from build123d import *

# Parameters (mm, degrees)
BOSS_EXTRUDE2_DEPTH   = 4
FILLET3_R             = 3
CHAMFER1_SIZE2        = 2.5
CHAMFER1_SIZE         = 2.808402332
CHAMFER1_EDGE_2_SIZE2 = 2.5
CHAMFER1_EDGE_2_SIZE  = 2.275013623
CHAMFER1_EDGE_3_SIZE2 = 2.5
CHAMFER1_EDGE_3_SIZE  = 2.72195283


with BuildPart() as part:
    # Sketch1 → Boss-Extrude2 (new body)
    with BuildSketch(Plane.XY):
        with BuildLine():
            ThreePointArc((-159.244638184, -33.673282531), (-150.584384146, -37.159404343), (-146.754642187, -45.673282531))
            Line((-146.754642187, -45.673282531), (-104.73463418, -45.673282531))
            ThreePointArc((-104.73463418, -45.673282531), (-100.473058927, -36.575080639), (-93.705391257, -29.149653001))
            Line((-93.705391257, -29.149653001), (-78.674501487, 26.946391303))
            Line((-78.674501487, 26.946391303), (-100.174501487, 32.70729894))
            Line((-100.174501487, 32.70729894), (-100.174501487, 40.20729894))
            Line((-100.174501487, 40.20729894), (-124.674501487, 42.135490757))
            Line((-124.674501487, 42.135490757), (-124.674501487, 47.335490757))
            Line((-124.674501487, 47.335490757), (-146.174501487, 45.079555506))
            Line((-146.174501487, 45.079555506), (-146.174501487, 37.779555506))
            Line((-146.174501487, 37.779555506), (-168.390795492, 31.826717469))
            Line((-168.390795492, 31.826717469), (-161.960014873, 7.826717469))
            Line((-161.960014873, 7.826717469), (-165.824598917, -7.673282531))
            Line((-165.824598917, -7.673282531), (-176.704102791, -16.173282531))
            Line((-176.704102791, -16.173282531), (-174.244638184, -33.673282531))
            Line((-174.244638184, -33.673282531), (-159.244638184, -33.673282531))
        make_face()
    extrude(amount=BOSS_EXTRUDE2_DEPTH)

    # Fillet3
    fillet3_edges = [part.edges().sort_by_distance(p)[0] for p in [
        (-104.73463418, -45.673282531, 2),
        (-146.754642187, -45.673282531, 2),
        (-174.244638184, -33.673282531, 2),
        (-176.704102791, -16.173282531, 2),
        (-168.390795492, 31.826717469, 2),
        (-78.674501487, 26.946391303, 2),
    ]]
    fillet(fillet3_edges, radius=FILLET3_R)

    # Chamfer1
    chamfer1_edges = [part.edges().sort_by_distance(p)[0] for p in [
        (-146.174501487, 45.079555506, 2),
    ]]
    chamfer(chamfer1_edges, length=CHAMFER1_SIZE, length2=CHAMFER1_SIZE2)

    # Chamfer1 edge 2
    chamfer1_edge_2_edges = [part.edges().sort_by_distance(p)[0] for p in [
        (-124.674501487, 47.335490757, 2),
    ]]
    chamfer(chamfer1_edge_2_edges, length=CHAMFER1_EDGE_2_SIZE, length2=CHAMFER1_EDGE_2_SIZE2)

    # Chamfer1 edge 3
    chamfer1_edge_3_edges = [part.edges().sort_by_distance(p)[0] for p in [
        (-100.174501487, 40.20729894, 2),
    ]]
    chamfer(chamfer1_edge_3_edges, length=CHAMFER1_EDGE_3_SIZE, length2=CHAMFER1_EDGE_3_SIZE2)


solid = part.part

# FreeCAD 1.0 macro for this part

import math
import FreeCAD as App
import Part
import Sketcher
from FreeCAD import Vector
Q = App.Units.Quantity


def edges_at(feature, points):
    """Names of the edges that pass closest to the given points."""
    edges = feature.Shape.Edges
    near = lambda p: min(range(len(edges)), key=lambda i: edges[i].distToShape(Part.Vertex(*p))[0])
    return sorted({f"Edge{near(p) + 1}" for p in points})

doc = App.newDocument("Part")
body = doc.addObject("PartDesign::Body", "Body")

sketch1 = body.newObject("Sketcher::SketchObject", "Sketch")
sketch1.AttachmentSupport = (doc.getObject("XY_Plane"), [""])
sketch1.MapMode = "FlatFace"
sketch1.addGeometry([
    Part.ArcOfCircle(Part.Circle(Vector(-159, -46, 0), Vector(0, 0, 1), 13), math.radians(2), math.radians(90)),
    Part.LineSegment(Vector(-147, -46, 0), Vector(-105, -46, 0)),
    Part.ArcOfCircle(Part.Circle(Vector(-73, -55, 0), Vector(0, 0, 1), 33), math.radians(129), math.radians(164)),
    Part.LineSegment(Vector(-94, -29, 0), Vector(-79, 27, 0)),
    Part.LineSegment(Vector(-79, 27, 0), Vector(-100, 33, 0)),
    Part.LineSegment(Vector(-100, 33, 0), Vector(-100, 40, 0)),
    Part.LineSegment(Vector(-100, 40, 0), Vector(-125, 42, 0)),
    Part.LineSegment(Vector(-125, 42, 0), Vector(-125, 47, 0)),
    Part.LineSegment(Vector(-125, 47, 0), Vector(-146, 45, 0)),
    Part.LineSegment(Vector(-146, 45, 0), Vector(-146, 38, 0)),
    Part.LineSegment(Vector(-146, 38, 0), Vector(-168, 32, 0)),
    Part.LineSegment(Vector(-168, 32, 0), Vector(-162, 8, 0)),
    Part.LineSegment(Vector(-162, 8, 0), Vector(-166, -8, 0)),
    Part.LineSegment(Vector(-166, -8, 0), Vector(-177, -16, 0)),
    Part.LineSegment(Vector(-177, -16, 0), Vector(-174, -34, 0)),
    Part.LineSegment(Vector(-174, -34, 0), Vector(-159, -34, 0)),
], False)
sketch1.addConstraint([
    Sketcher.Constraint("Coincident", 0, 1, 1, 1),
    Sketcher.Constraint("Coincident", 1, 2, 2, 2),
    Sketcher.Constraint("Coincident", 2, 1, 3, 1),
    Sketcher.Constraint("Coincident", 3, 2, 4, 1),
    Sketcher.Constraint("Coincident", 4, 2, 5, 1),
    Sketcher.Constraint("Coincident", 5, 2, 6, 1),
    Sketcher.Constraint("Coincident", 6, 2, 7, 1),
    Sketcher.Constraint("Coincident", 7, 2, 8, 1),
    Sketcher.Constraint("Coincident", 8, 2, 9, 1),
    Sketcher.Constraint("Coincident", 9, 2, 10, 1),
    Sketcher.Constraint("Coincident", 10, 2, 11, 1),
    Sketcher.Constraint("Coincident", 11, 2, 12, 1),
    Sketcher.Constraint("Coincident", 12, 2, 13, 1),
    Sketcher.Constraint("Coincident", 13, 2, 14, 1),
    Sketcher.Constraint("Coincident", 14, 2, 15, 1),
    Sketcher.Constraint("Tangent", 15, 2, 0, 2),
    Sketcher.Constraint("Horizontal", 1),
    Sketcher.Constraint("Vertical", 5),
    Sketcher.Constraint("Vertical", 7),
    Sketcher.Constraint("Vertical", 9),
    Sketcher.Constraint("Horizontal", 15),
    Sketcher.Constraint("Perpendicular", 3, 4),
    Sketcher.Constraint("Perpendicular", 10, 11),
    Sketcher.Constraint("Radius", 0, Q("12.5 mm")),
    Sketcher.Constraint("Radius", 2, Q("33.5 mm")),
    Sketcher.Constraint("DistanceX", 15, 1, 15, 2, Q("15 mm")),
    Sketcher.Constraint("Angle", 3, Q("75 deg")),
    Sketcher.Constraint("Angle", 10, Q("-165 deg")),
    Sketcher.Constraint("Angle", 12, Q("-104 deg")),
    Sketcher.Constraint("Angle", 13, Q("-142 deg")),
    Sketcher.Constraint("Angle", 14, Q("-82 deg")),
    Sketcher.Constraint("Distance", 10, Q("23 mm")),
    Sketcher.Constraint("DistanceY", 5, 1, 5, 2, Q("7.5 mm")),
    Sketcher.Constraint("DistanceY", 7, 1, 7, 2, Q("5.2 mm")),
    Sketcher.Constraint("DistanceY", 9, 2, 9, 1, Q("7.3 mm")),
    Sketcher.Constraint("Angle", 6, Q("175.5 deg")),
    Sketcher.Constraint("DistanceY", 2, 3, 0, 3, Q("9 mm")),
    Sketcher.Constraint("DistanceX", 6, 2, 3, 2, Q("46 mm")),
    Sketcher.Constraint("DistanceX", 8, 2, 5, 2, Q("46 mm")),
    Sketcher.Constraint("DistanceY", 11, 2, 10, 2, Q("24 mm")),
    Sketcher.Constraint("DistanceY", 0, 3, 11, 2, Q("54 mm")),
    Sketcher.Constraint("DistanceY", 0, 1, 12, 2, Q("38 mm")),
    Sketcher.Constraint("DistanceY", 13, 2, 11, 2, Q("24 mm")),
    Sketcher.Constraint("DistanceY", 14, 2, 12, 2, Q("26 mm")),
    Sketcher.Constraint("DistanceX", 4, 2, 3, 2, Q("21.5 mm")),
    Sketcher.Constraint("Distance", 3, Q("58.074898 mm")),
    Sketcher.Constraint("DistanceX", 1, 1, 1, 2, Q("42.020008 mm")),
    Sketcher.Constraint("DistanceX", 3, 2, -1, 1, Q("78.674501 mm")),
    Sketcher.Constraint("DistanceY", -1, 1, 4, 2, Q("32.707299 mm")),
])
pad1 = body.newObject("PartDesign::Pad", "Pad")
pad1.Profile = sketch1
pad1.Length = 4
doc.recompute()

fillet = body.newObject("PartDesign::Fillet", "Fillet")
fillet.Base = (pad1, edges_at(pad1, [
    (-104.735, -45.673, 2),
    (-146.755, -45.673, 2),
    (-174.245, -33.673, 2),
    (-176.704, -16.173, 2),
    (-168.391, 31.827, 2),
    (-78.675, 26.946, 2),
]))
fillet.Radius = 3
doc.recompute()

chamfer = body.newObject("PartDesign::Chamfer", "Chamfer")
chamfer.Base = (fillet, edges_at(fillet, [(-146.175, 45.08, 2)]))
chamfer.ChamferType = "Two distances"
chamfer.Size = 2.808402
chamfer.Size2 = 2.5
doc.recompute()

chamfer2 = body.newObject("PartDesign::Chamfer", "Chamfer001")
chamfer2.Base = (chamfer, edges_at(chamfer, [(-124.675, 47.335, 2)]))
chamfer2.ChamferType = "Two distances"
chamfer2.Size = 2.275014
chamfer2.Size2 = 2.5
doc.recompute()

chamfer3 = body.newObject("PartDesign::Chamfer", "Chamfer002")
chamfer3.Base = (chamfer2, edges_at(chamfer2, [(-100.175, 40.207, 2)]))
chamfer3.ChamferType = "Two distances"
chamfer3.Size = 2.721953
chamfer3.Size2 = 2.5

doc.recompute()
